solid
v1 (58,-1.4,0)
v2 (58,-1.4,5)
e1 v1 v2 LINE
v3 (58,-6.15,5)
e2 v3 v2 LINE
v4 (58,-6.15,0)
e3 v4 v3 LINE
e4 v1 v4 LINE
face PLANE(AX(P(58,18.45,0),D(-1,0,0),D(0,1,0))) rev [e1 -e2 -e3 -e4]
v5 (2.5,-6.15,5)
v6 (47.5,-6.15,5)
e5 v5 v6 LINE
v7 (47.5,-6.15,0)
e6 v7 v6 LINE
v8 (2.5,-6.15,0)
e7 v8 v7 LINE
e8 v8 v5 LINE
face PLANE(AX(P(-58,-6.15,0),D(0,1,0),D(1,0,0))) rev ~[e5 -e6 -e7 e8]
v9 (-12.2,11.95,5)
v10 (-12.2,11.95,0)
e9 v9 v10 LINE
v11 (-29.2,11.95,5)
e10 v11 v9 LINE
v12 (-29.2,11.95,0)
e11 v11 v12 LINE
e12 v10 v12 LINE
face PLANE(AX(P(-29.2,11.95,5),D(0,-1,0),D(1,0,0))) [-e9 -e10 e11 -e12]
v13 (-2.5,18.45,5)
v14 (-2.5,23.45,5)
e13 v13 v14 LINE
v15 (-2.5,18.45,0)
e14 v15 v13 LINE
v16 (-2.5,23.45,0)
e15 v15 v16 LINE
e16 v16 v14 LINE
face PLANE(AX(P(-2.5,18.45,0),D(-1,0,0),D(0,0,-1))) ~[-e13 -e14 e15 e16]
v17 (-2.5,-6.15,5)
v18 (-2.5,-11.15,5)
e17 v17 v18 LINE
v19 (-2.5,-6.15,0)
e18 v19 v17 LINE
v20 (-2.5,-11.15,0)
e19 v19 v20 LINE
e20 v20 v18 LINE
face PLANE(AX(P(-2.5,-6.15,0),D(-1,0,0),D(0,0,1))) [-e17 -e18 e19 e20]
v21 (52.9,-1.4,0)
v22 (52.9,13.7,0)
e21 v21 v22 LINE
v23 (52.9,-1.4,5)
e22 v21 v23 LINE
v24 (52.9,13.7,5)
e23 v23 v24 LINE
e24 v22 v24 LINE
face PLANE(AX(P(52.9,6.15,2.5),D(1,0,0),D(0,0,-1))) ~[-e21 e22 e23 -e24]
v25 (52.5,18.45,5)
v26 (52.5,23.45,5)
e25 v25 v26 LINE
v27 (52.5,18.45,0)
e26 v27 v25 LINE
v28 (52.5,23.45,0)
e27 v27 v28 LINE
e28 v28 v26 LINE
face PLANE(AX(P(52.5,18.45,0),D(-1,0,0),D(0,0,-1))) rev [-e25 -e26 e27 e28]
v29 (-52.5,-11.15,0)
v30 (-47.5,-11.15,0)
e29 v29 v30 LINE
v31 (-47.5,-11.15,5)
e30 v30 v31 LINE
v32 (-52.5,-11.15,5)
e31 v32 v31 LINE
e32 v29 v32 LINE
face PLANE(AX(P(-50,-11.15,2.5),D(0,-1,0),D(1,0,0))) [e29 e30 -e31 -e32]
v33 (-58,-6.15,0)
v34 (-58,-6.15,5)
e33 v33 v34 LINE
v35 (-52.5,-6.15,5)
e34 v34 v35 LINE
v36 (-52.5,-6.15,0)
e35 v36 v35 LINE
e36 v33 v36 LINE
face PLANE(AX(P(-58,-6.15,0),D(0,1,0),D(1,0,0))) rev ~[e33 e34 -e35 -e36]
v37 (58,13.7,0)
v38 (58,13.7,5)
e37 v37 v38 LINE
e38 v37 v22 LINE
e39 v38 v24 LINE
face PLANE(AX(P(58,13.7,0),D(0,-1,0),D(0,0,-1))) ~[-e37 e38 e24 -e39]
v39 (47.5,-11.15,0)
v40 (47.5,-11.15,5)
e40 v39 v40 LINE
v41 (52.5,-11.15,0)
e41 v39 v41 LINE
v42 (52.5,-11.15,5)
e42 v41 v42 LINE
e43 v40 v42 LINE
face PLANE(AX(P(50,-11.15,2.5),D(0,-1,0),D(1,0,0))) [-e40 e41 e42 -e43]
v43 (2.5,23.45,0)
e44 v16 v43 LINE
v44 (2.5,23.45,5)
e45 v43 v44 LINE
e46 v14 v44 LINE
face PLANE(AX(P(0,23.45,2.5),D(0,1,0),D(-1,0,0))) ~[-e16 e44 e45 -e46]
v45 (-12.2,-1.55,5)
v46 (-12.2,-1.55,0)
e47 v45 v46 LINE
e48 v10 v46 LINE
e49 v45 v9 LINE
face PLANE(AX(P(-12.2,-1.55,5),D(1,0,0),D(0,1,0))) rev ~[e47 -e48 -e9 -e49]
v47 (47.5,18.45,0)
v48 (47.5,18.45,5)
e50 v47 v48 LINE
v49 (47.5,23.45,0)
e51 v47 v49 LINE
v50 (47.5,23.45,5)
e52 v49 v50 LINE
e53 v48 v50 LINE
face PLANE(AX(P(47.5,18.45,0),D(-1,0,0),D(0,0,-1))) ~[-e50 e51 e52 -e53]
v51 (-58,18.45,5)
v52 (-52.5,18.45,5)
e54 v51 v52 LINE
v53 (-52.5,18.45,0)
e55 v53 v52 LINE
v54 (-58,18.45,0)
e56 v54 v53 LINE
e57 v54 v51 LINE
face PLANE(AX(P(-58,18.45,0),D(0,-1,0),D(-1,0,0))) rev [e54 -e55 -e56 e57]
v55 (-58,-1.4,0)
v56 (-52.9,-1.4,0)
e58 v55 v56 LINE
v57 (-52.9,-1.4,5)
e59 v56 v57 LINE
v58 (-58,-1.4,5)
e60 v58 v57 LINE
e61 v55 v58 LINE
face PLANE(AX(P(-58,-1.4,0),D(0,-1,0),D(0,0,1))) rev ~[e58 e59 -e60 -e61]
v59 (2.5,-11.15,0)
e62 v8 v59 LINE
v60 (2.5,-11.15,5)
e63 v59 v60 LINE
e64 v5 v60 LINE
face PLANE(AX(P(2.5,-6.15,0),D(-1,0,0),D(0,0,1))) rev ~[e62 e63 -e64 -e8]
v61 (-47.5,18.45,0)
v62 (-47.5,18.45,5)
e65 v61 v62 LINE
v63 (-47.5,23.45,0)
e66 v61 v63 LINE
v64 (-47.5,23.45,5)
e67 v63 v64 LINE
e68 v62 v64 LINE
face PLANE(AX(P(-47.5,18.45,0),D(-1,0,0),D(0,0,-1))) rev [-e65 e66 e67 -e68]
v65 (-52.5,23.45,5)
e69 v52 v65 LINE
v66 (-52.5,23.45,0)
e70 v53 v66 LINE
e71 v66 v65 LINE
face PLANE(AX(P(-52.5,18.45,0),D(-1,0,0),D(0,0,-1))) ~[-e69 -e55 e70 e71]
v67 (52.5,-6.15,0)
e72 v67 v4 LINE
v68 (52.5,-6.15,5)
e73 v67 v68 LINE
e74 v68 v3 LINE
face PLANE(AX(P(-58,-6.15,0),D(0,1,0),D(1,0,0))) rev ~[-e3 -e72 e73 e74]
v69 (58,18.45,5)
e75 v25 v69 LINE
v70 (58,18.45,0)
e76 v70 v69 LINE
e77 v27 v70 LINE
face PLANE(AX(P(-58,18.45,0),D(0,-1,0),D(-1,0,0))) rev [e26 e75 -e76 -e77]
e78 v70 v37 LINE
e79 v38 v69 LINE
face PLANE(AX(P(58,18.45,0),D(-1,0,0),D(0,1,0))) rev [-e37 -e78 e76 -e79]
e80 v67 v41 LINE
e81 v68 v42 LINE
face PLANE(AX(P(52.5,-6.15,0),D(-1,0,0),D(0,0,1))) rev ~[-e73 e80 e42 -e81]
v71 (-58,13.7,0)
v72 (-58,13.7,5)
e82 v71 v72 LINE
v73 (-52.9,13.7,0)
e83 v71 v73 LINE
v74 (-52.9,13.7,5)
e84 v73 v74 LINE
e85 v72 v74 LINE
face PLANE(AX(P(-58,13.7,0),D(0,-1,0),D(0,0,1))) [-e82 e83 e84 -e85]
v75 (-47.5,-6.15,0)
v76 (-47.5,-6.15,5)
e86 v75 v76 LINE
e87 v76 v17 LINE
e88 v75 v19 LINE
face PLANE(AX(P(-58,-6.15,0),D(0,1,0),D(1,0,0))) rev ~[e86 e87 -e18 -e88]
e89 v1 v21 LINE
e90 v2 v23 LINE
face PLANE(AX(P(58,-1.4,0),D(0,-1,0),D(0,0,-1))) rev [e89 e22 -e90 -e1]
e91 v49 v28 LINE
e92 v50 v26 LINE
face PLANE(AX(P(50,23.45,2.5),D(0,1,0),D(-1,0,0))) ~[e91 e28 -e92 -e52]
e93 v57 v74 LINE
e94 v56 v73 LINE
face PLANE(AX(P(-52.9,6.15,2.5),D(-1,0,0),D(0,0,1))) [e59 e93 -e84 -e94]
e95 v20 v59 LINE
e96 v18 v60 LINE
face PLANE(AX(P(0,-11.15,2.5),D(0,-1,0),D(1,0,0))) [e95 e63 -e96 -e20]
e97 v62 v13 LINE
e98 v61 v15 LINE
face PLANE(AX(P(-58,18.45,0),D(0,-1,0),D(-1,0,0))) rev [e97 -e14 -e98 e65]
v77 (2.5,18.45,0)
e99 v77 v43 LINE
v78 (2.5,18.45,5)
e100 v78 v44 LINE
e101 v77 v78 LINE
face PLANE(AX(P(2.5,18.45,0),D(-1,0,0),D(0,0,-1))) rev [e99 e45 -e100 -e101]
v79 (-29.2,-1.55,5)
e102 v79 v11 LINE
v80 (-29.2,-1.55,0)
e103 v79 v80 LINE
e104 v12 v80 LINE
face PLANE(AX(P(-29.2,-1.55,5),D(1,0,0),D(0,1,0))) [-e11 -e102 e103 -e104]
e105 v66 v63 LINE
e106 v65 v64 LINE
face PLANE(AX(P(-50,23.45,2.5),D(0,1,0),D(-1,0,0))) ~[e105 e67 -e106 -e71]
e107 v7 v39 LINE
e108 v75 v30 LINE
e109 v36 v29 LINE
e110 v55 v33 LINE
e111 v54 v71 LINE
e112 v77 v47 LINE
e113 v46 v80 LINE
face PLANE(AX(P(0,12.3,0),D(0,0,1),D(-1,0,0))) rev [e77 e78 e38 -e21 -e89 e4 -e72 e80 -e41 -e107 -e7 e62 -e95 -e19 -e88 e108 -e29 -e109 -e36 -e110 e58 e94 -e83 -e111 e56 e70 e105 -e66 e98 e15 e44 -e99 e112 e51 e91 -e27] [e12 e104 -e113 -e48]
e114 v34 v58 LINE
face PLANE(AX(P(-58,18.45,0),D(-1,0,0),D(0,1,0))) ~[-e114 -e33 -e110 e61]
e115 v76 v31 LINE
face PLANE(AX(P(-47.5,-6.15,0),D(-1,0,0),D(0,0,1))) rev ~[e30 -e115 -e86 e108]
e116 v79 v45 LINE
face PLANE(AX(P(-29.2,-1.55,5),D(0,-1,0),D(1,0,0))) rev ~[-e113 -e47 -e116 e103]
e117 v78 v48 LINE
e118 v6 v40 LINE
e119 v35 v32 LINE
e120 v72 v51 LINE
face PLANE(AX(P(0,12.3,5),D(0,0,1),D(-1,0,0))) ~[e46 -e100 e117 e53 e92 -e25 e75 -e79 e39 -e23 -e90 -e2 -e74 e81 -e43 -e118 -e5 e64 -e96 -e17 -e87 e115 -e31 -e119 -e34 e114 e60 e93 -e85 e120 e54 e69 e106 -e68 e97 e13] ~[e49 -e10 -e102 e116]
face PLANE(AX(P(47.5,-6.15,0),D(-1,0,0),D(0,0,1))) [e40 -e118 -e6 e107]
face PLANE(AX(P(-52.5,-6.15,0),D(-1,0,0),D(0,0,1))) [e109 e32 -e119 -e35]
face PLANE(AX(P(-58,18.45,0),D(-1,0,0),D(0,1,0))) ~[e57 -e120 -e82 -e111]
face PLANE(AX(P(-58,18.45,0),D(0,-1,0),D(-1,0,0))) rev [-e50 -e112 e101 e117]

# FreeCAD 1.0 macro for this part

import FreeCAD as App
import Part
import Sketcher
from FreeCAD import Vector
Q = App.Units.Quantity

doc = App.newDocument("Part")
body = doc.addObject("PartDesign::Body", "Body")

# Sketch on XY plane
sketch1 = body.newObject("Sketcher::SketchObject", "Sketch")
sketch1.AttachmentSupport = (doc.getObject("XY_Plane"), [""])
sketch1.MapMode = "FlatFace"
sketch1.addGeometry(Part.LineSegment(Vector(-58, 6, 0), Vector(-58, -6, 0)), False)
sketch1.addGeometry(Part.LineSegment(Vector(-58, -6, 0), Vector(58, -6, 0)), False)
sketch1.addGeometry(Part.LineSegment(Vector(58, -6, 0), Vector(58, 6, 0)), False)
sketch1.addGeometry(Part.LineSegment(Vector(58, 6, 0), Vector(-58, 6, 0)), False)
sketch1.addConstraint(Sketcher.Constraint("Coincident", 0, 2, 1, 1))
sketch1.addConstraint(Sketcher.Constraint("Coincident", 1, 2, 2, 1))
sketch1.addConstraint(Sketcher.Constraint("Coincident", 2, 2, 3, 1))
sketch1.addConstraint(Sketcher.Constraint("Coincident", 3, 2, 0, 1))
sketch1.addConstraint(Sketcher.Constraint("Vertical", 0))
sketch1.addConstraint(Sketcher.Constraint("Horizontal", 1))
sketch1.addConstraint(Sketcher.Constraint("Vertical", 2))
sketch1.addConstraint(Sketcher.Constraint("Horizontal", 3))
sketch1.addConstraint(Sketcher.Constraint("Symmetric", 0, 2, 2, 2, -1, 1))
sketch1.addConstraint(Sketcher.Constraint("DistanceX", 1, 1, 1, 2, Q("116 mm")))
sketch1.addConstraint(Sketcher.Constraint("DistanceY", 0, 2, 0, 1, Q("12.3 mm")))
pad1 = body.newObject("PartDesign::Pad", "Pad")
pad1.Profile = sketch1
pad1.Length = 5

# Sketch on XZ plane
sketch2 = body.newObject("Sketcher::SketchObject", "Sketch001")
sketch2.AttachmentSupport = (doc.getObject("XZ_Plane"), [""])
sketch2.MapMode = "FlatFace"
sketch2.AttachmentOffset = App.Placement(Vector(0, 0, 6.15), App.Rotation())
sketch2.addGeometry(Part.LineSegment(Vector(-52, 5, 0), Vector(-52, 0, 0)), False)
sketch2.addGeometry(Part.LineSegment(Vector(-52, 0, 0), Vector(-48, 0, 0)), False)
sketch2.addGeometry(Part.LineSegment(Vector(-48, 0, 0), Vector(-48, 5, 0)), False)
sketch2.addGeometry(Part.LineSegment(Vector(-48, 5, 0), Vector(-52, 5, 0)), False)
sketch2.addGeometry(Part.LineSegment(Vector(-2, 5, 0), Vector(-2, 0, 0)), False)
sketch2.addGeometry(Part.LineSegment(Vector(-2, 0, 0), Vector(2, 0, 0)), False)
sketch2.addGeometry(Part.LineSegment(Vector(2, 0, 0), Vector(2, 5, 0)), False)
sketch2.addGeometry(Part.LineSegment(Vector(2, 5, 0), Vector(-2, 5, 0)), False)
sketch2.addGeometry(Part.LineSegment(Vector(48, 5, 0), Vector(48, 0, 0)), False)
sketch2.addGeometry(Part.LineSegment(Vector(48, 0, 0), Vector(52, 0, 0)), False)
sketch2.addGeometry(Part.LineSegment(Vector(52, 0, 0), Vector(52, 5, 0)), False)
sketch2.addGeometry(Part.LineSegment(Vector(52, 5, 0), Vector(48, 5, 0)), False)
sketch2.addConstraint(Sketcher.Constraint("Coincident", 0, 2, 1, 1))
sketch2.addConstraint(Sketcher.Constraint("Coincident", 1, 2, 2, 1))
sketch2.addConstraint(Sketcher.Constraint("Coincident", 2, 2, 3, 1))
sketch2.addConstraint(Sketcher.Constraint("Coincident", 3, 2, 0, 1))
sketch2.addConstraint(Sketcher.Constraint("Coincident", 4, 2, 5, 1))
sketch2.addConstraint(Sketcher.Constraint("Coincident", 5, 2, 6, 1))
sketch2.addConstraint(Sketcher.Constraint("Coincident", 6, 2, 7, 1))
sketch2.addConstraint(Sketcher.Constraint("Coincident", 7, 2, 4, 1))
sketch2.addConstraint(Sketcher.Constraint("Coincident", 8, 2, 9, 1))
sketch2.addConstraint(Sketcher.Constraint("Coincident", 9, 2, 10, 1))
sketch2.addConstraint(Sketcher.Constraint("Coincident", 10, 2, 11, 1))
sketch2.addConstraint(Sketcher.Constraint("Coincident", 11, 2, 8, 1))
sketch2.addConstraint(Sketcher.Constraint("Vertical", 0))
sketch2.addConstraint(Sketcher.Constraint("Horizontal", 1))
sketch2.addConstraint(Sketcher.Constraint("Vertical", 2))
sketch2.addConstraint(Sketcher.Constraint("Horizontal", 3))
sketch2.addConstraint(Sketcher.Constraint("Vertical", 4))
sketch2.addConstraint(Sketcher.Constraint("Horizontal", 5))
sketch2.addConstraint(Sketcher.Constraint("Vertical", 6))
sketch2.addConstraint(Sketcher.Constraint("Horizontal", 7))
sketch2.addConstraint(Sketcher.Constraint("Vertical", 8))
sketch2.addConstraint(Sketcher.Constraint("Horizontal", 9))
sketch2.addConstraint(Sketcher.Constraint("Vertical", 10))
sketch2.addConstraint(Sketcher.Constraint("Horizontal", 11))
sketch2.addConstraint(Sketcher.Constraint("Symmetric", 4, 2, 5, 2, -1, 1))
sketch2.addConstraint(Sketcher.Constraint("Symmetric", 1, 2, 8, 2, -1, 1))
sketch2.addConstraint(Sketcher.Constraint("Symmetric", 0, 2, 9, 2, -2))
sketch2.addConstraint(Sketcher.Constraint("Horizontal", 3, 2, 6, 2))
sketch2.addConstraint(Sketcher.Constraint("Horizontal", 7, 2, 10, 2))
sketch2.addConstraint(Sketcher.Constraint("Equal", 3, 5))
sketch2.addConstraint(Sketcher.Constraint("Equal", 11, 0))
sketch2.addConstraint(Sketcher.Constraint("DistanceX", 1, 1, 1, 2, Q("5 mm")))
sketch2.addConstraint(Sketcher.Constraint("DistanceX", 1, 2, 4, 2, Q("45 mm")))
pad2 = body.newObject("PartDesign::Pad", "Pad001")
pad2.Profile = sketch2
pad2.Length = 5
body2 = doc.addObject("PartDesign::Body", "Body001")
doc.recompute()

body2.BaseFeature = body
doc.recompute()

mirroring = doc.addObject("Part::Mirroring", "Mirroring")
mirroring.Source = body
mirroring.Base = Vector(-58, 6.15, 5)
mirroring.Normal = Vector(0, -1, 0)
body3 = doc.addObject("PartDesign::Body", "Body002")
body3.BaseFeature = mirroring
boolean = body2.newObject("PartDesign::Boolean", "Boolean")
boolean.Type = "Fuse"
boolean.addObjects([body3])
doc.recompute()

# Sketch on XY plane
sketch3 = body2.newObject("Sketcher::SketchObject", "Sketch002")
sketch3.AttachmentSupport = (doc.getObject("XY_Plane001"), [""])
sketch3.MapMode = "FlatFace"
sketch3.AttachmentOffset = App.Placement(Vector(0, 0, 5), App.Rotation())
sketch3.addGeometry(Part.LineSegment(Vector(-29, 12, 0), Vector(-29, -2, 0)), False)
sketch3.addGeometry(Part.LineSegment(Vector(-29, -2, 0), Vector(-12, -2, 0)), False)
sketch3.addGeometry(Part.LineSegment(Vector(-12, -2, 0), Vector(-12, 12, 0)), False)
sketch3.addGeometry(Part.LineSegment(Vector(-12, 12, 0), Vector(-29, 12, 0)), False)
sketch3.addConstraint(Sketcher.Constraint("Coincident", 0, 2, 1, 1))
sketch3.addConstraint(Sketcher.Constraint("Coincident", 1, 2, 2, 1))
sketch3.addConstraint(Sketcher.Constraint("Coincident", 2, 2, 3, 1))
sketch3.addConstraint(Sketcher.Constraint("Coincident", 3, 2, 0, 1))
sketch3.addConstraint(Sketcher.Constraint("Vertical", 0))
sketch3.addConstraint(Sketcher.Constraint("Horizontal", 1))
sketch3.addConstraint(Sketcher.Constraint("Vertical", 2))
sketch3.addConstraint(Sketcher.Constraint("Horizontal", 3))
sketch3.addConstraint(Sketcher.Constraint("DistanceX", 1, 1, 1, 2, Q("17 mm")))
sketch3.addConstraint(Sketcher.Constraint("DistanceY", 0, 2, 0, 1, Q("13.5 mm")))
sketch3.addConstraint(Sketcher.Constraint("DistanceX", 0, 2, -1, 1, Q("29.2 mm")))
sketch3.addConstraint(Sketcher.Constraint("DistanceY", 0, 2, -1, 1, Q("1.55 mm")))
pocket1 = body2.newObject("PartDesign::Pocket", "Pocket")
pocket1.Profile = sketch3
pocket1.Type = "ThroughAll"

# Sketch on YZ plane
sketch4 = body2.newObject("Sketcher::SketchObject", "Sketch003")
sketch4.AttachmentSupport = (doc.getObject("YZ_Plane001"), [""])
sketch4.MapMode = "FlatFace"
sketch4.AttachmentOffset = App.Placement(Vector(0, 0, -58), App.Rotation())
sketch4.addGeometry(Part.LineSegment(Vector(14, 0, 0), Vector(-1, 0, 0)), False)
sketch4.addGeometry(Part.LineSegment(Vector(-1, 0, 0), Vector(-1, 5, 0)), False)
sketch4.addGeometry(Part.LineSegment(Vector(-1, 5, 0), Vector(14, 5, 0)), False)
sketch4.addGeometry(Part.LineSegment(Vector(14, 5, 0), Vector(14, 0, 0)), False)
sketch4.addConstraint(Sketcher.Constraint("Coincident", 0, 2, 1, 1))
sketch4.addConstraint(Sketcher.Constraint("Coincident", 1, 2, 2, 1))
sketch4.addConstraint(Sketcher.Constraint("Coincident", 2, 2, 3, 1))
sketch4.addConstraint(Sketcher.Constraint("Coincident", 3, 2, 0, 1))
sketch4.addConstraint(Sketcher.Constraint("Horizontal", 0))
sketch4.addConstraint(Sketcher.Constraint("Vertical", 1))
sketch4.addConstraint(Sketcher.Constraint("Horizontal", 2))
sketch4.addConstraint(Sketcher.Constraint("Vertical", 3))
sketch4.addConstraint(Sketcher.Constraint("PointOnObject", 0, 2, -1))
sketch4.addConstraint(Sketcher.Constraint("DistanceY", 1, 1, 1, 2, Q("5 mm")))
sketch4.addConstraint(Sketcher.Constraint("DistanceX", 0, 2, 0, 1, Q("15.1 mm")))
sketch4.addConstraint(Sketcher.Constraint("DistanceX", 0, 2, -1, 1, Q("1.4 mm")))
pocket2 = body2.newObject("PartDesign::Pocket", "Pocket001")
pocket2.Profile = sketch4
pocket2.Length = 5.1
pocket2.Reversed = True
doc.recompute()

mirrored = body2.newObject("PartDesign::Mirrored", "Mirrored")
mirrored.Originals = [pocket2]
mirrored.MirrorPlane = (doc.getObject("YZ_Plane001"), [""])
body2.Tip = mirrored
mirroring.Visibility = False

doc.recompute()
